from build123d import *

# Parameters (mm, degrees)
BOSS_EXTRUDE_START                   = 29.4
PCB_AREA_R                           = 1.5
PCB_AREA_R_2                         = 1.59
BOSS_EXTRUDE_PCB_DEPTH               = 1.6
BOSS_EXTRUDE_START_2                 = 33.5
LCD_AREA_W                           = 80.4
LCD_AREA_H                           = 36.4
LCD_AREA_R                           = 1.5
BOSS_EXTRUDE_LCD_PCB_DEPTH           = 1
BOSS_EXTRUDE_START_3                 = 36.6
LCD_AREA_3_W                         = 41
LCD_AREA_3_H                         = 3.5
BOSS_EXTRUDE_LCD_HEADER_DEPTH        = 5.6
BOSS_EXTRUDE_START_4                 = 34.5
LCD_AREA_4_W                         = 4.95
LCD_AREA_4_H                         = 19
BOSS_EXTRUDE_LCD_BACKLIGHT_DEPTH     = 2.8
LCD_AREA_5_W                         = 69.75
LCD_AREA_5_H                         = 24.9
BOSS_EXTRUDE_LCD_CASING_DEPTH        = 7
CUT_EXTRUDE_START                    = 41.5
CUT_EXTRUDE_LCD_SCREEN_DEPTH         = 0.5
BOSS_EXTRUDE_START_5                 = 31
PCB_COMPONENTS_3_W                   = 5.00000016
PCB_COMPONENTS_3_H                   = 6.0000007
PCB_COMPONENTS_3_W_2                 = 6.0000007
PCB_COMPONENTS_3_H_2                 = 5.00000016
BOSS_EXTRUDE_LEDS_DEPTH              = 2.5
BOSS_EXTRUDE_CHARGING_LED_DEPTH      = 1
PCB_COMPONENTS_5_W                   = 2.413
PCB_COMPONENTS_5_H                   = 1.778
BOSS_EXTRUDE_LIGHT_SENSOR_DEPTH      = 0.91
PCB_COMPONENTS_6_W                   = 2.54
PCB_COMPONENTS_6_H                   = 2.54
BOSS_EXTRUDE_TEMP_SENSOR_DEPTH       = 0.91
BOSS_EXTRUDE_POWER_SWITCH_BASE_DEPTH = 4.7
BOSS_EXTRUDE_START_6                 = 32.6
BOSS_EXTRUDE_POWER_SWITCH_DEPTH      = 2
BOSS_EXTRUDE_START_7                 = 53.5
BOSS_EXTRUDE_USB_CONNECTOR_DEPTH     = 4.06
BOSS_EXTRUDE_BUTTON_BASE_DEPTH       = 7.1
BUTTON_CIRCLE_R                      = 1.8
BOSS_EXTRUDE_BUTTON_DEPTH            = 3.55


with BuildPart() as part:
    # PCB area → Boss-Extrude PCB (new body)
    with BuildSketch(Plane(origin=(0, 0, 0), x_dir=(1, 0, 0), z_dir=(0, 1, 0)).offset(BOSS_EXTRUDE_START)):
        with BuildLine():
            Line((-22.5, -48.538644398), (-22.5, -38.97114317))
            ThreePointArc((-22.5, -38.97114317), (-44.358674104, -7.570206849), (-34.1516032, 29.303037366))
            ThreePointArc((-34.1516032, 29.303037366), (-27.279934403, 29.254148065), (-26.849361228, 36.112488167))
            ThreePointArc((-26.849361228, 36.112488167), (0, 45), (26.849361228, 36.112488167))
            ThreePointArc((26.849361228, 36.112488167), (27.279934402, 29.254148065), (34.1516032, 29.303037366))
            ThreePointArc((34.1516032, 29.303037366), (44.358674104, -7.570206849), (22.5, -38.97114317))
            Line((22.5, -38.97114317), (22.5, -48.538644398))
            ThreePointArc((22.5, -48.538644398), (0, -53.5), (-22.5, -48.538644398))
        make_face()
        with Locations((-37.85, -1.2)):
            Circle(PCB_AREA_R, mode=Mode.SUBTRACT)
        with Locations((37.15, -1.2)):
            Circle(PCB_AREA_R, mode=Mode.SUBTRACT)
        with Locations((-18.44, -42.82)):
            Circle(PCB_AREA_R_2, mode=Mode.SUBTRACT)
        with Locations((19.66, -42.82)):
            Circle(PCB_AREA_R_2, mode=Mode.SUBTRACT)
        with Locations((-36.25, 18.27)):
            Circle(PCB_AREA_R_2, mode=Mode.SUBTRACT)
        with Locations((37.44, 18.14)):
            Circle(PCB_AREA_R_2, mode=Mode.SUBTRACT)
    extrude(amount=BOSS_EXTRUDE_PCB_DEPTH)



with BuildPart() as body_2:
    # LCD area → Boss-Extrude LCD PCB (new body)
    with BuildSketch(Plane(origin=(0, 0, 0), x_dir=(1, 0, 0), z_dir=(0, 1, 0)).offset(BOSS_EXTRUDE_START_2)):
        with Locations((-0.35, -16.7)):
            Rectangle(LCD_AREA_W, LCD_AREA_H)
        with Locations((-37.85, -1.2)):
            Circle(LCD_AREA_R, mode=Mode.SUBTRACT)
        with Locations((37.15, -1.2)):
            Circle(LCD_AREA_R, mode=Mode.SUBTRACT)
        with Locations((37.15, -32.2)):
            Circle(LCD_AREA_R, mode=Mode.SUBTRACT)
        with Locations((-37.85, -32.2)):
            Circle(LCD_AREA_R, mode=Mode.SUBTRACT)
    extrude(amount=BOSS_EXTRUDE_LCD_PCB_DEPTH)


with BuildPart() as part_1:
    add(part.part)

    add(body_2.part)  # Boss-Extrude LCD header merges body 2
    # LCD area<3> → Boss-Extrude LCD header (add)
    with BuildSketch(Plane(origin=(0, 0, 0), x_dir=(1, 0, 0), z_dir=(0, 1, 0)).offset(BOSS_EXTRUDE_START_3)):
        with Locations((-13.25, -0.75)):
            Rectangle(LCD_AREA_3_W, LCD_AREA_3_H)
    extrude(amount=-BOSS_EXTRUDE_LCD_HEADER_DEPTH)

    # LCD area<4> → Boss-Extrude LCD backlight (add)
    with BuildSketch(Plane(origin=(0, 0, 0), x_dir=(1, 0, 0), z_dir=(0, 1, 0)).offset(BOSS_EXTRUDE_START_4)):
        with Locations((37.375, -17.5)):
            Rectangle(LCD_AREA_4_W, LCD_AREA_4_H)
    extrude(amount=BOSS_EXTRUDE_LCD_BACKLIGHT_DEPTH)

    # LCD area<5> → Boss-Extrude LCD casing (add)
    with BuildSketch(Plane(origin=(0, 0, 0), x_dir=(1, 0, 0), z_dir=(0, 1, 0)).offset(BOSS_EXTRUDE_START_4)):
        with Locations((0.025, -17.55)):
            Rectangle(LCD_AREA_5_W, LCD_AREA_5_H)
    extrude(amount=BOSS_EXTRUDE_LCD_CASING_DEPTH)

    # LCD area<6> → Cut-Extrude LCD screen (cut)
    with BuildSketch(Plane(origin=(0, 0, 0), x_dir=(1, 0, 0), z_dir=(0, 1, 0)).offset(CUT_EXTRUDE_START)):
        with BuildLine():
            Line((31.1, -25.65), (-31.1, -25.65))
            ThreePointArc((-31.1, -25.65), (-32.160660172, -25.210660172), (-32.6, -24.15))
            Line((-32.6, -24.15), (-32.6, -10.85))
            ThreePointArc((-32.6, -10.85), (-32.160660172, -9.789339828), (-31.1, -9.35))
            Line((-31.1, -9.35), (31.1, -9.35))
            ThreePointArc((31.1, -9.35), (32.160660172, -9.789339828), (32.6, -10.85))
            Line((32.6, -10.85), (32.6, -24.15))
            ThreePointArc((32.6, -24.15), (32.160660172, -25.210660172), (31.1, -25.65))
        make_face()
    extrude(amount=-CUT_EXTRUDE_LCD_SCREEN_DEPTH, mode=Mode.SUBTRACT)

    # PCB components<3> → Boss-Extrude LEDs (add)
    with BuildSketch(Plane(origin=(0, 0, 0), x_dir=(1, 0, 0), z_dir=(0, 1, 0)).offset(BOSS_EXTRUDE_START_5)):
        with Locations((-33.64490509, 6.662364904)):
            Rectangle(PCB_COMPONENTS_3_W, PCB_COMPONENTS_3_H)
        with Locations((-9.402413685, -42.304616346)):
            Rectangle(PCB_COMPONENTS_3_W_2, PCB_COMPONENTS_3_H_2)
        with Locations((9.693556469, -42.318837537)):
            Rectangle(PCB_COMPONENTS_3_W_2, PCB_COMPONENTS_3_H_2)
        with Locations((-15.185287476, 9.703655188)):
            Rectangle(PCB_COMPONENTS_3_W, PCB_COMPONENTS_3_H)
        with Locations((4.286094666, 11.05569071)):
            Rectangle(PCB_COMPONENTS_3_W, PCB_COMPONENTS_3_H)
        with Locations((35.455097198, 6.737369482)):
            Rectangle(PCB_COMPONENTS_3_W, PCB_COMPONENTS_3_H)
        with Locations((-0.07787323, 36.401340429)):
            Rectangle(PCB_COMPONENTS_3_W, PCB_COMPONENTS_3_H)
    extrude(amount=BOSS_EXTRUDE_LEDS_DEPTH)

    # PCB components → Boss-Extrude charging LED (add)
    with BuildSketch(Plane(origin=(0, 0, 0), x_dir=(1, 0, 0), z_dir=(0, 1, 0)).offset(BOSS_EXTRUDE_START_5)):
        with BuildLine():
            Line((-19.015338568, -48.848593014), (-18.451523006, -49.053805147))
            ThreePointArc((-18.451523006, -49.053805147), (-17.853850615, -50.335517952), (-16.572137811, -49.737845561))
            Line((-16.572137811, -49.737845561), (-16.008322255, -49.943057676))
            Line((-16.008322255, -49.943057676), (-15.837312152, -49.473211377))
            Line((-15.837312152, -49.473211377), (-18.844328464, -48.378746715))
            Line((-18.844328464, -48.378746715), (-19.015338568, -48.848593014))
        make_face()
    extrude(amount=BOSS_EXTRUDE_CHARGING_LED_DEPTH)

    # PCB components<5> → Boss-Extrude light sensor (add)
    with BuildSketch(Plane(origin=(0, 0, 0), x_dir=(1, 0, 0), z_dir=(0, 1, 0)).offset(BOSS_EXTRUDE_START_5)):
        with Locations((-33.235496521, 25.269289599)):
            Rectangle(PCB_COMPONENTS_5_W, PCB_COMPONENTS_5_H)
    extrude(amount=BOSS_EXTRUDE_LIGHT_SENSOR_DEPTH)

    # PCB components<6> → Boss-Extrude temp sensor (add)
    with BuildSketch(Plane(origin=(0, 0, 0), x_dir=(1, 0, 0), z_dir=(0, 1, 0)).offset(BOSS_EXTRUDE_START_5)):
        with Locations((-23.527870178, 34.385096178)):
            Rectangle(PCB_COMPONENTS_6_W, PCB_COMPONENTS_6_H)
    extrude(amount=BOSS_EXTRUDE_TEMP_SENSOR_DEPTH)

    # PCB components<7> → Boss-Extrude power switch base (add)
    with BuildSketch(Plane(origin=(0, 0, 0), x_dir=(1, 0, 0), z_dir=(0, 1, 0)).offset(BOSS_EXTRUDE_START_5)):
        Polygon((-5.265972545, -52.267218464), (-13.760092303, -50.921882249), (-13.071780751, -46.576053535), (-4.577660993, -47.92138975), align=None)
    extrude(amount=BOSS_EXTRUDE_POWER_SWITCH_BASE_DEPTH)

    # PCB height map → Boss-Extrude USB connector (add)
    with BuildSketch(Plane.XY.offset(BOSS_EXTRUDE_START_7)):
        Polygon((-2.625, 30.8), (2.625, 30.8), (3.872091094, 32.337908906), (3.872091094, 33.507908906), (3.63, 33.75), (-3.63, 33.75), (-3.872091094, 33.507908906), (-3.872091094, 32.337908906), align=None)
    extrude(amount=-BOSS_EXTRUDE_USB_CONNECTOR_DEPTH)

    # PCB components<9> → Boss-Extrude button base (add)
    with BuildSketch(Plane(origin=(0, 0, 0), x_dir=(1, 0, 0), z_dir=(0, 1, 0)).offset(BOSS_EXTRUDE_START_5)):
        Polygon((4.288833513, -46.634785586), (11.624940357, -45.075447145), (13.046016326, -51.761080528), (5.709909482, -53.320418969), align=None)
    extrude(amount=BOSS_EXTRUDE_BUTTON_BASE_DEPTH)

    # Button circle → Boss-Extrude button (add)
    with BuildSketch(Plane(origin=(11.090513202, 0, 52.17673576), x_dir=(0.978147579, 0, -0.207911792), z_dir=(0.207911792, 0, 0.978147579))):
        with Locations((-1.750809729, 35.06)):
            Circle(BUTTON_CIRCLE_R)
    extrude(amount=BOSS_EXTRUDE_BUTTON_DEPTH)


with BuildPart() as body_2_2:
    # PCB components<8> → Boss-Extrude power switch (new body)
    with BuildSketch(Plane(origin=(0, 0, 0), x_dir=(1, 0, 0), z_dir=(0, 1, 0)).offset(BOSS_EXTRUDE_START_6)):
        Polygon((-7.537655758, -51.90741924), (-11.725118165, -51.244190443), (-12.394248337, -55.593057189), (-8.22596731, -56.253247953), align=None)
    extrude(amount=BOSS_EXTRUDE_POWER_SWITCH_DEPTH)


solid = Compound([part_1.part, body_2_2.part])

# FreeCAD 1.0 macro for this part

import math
import FreeCAD as App
import Part
import Sketcher
Q = App.Units.Quantity

doc = App.newDocument("Part")
params = doc.addObject("Spreadsheet::Sheet", "Params")
for row, (alias, value) in enumerate([
    ("sketch1_diameter", "3 mm"),
    ("sketch1_radius", "45 mm"),
    ("sketch1_radius2", "5 mm"),
    ("sketch1_radius3", "53.5 mm"),
    ("sketch1_diameter2", "3.18 mm"),
    ("pad1_length", "1.6 mm"),
    ("sketch2_diameter", "3 mm"),
    ("sketch2_width", "80.4 mm"),
    ("sketch2_height", "36.4 mm"),
    ("pad2_length", "1 mm"),
    ("sketch3_width", "41 mm"),
    ("sketch3_height", "3.5 mm"),
    ("pad3_length", "5.6 mm"),
    ("sketch4_height", "19 mm"),
    ("sketch4_width", "4.95 mm"),
    ("pad4_length", "2.8 mm"),
    ("sketch5_height", "24.9 mm"),
    ("sketch5_width", "69.75 mm"),
    ("pad5_length", "7 mm"),
    ("sketch6_radius", "1.5 mm"),
    ("sketch6_width", "62.2 mm"),
    ("sketch6_height", "13.3 mm"),
    ("pocket1_length", "0.5 mm"),
    ("sketch7_width", "5 mm"),
    ("sketch7_width2", "6.000001 mm"),
    ("pad6_length", "2.5 mm"),
    ("sketch8_radius", "1 mm"),
    ("sketch8_length", "0.6 mm"),
    ("sketch8_length2", "0.5 mm"),
    ("pad7_length", "1 mm"),
    ("pad8_length", "0.91 mm"),
    ("sketch10_width", "2.54 mm"),
    ("pad9_length", "0.91 mm"),
    ("sketch11_length", "8.6 mm"),
    ("sketch11_length2", "4.4 mm"),
    ("pad10_length", "4.7 mm"),
    ("sketch12_width", "5.25 mm"),
    ("sketch12_width2", "7.26 mm"),
    ("sketch12_height", "1.17 mm"),
    ("sketch12_length", "1.98 mm"),
    ("pad11_length", "4.06 mm"),
    ("sketch13_length", "7.5 mm"),
    ("pad12_length", "7.1 mm"),
    ("sketch14_diameter", "3.6 mm"),
    ("pad13_length", "3.55 mm"),
    ("sketch15_length", "4.4 mm"),
    ("pad14_length", "2 mm"),
], start=1):
    params.set(f"A{row}", alias)
    params.set(f"B{row}", "=" + value)
    params.setAlias(f"B{row}", alias)

body = doc.addObject("PartDesign::Body", "Body")

# Sketch on XZ plane
sketch1 = doc.addObject("Sketcher::SketchObject", "Sketch")
body.addObject(sketch1)
sketch1.AttachmentSupport = (doc.XZ_Plane, [""])
sketch1.MapMode = "FlatFace"
sketch1.AttachmentOffset = App.Placement(App.Vector(0, 0, -29.4), App.Rotation())
sketch1.addGeometry([
    Part.LineSegment(App.Vector(-22.5, 38.971143, 0), App.Vector(-22.5, 48.538644, 0)),  # 0
    Part.ArcOfCircle(Part.Circle(App.Vector(0, 0, 0), App.Vector(0, 0, 1), 53.5), math.radians(65.130005), math.radians(114.869995)),  # 1
    Part.LineSegment(App.Vector(22.5, 48.538644, 0), App.Vector(22.5, 38.971143, 0)),  # 2
    Part.ArcOfCircle(Part.Circle(App.Vector(0, 0, 0), App.Vector(0, 0, 1), 45), math.radians(-40.630523), math.radians(60)),  # 3
    Part.ArcOfCircle(Part.Circle(App.Vector(30.689926, -32.910917, 0), App.Vector(0, 0, 1), 5), math.radians(46.184739), math.radians(219.815261)),  # 4
    Part.ArcOfCircle(Part.Circle(App.Vector(0, 0, 0), App.Vector(0, 0, 1), 45), math.radians(-126.630523), math.radians(-53.369477)),  # 5
    Part.ArcOfCircle(Part.Circle(App.Vector(-30.689926, -32.910917, 0), App.Vector(0, 0, 1), 5), math.radians(-39.815261), math.radians(133.815261)),  # 6
    Part.ArcOfCircle(Part.Circle(App.Vector(0, 0, 0), App.Vector(0, 0, 1), 45), math.radians(120), math.radians(220.630523)),  # 7
    Part.Circle(App.Vector(19.66, 42.82, 0), App.Vector(0, 0, 1), 1.59),  # 8
    Part.Circle(App.Vector(-18.44, 42.82, 0), App.Vector(0, 0, 1), 1.59),  # 9
    Part.Circle(App.Vector(37.15, 1.2, 0), App.Vector(0, 0, 1), 1.5),  # 10
    Part.Circle(App.Vector(37.44, -18.14, 0), App.Vector(0, 0, 1), 1.59),  # 11
    Part.Circle(App.Vector(-37.85, 1.2, 0), App.Vector(0, 0, 1), 1.5),  # 12
    Part.Circle(App.Vector(-36.25, -18.27, 0), App.Vector(0, 0, 1), 1.59),  # 13
], False)
sketch1.addConstraint([
    Sketcher.Constraint("Coincident", 0, 2, 1, 2),
    Sketcher.Constraint("Coincident", 1, 1, 2, 1),
    Sketcher.Constraint("Coincident", 2, 2, 3, 2),
    Sketcher.Constraint("Coincident", 3, 1, 4, 1),
    Sketcher.Constraint("Coincident", 4, 2, 5, 2),
    Sketcher.Constraint("Coincident", 5, 1, 6, 1),
    Sketcher.Constraint("Coincident", 6, 2, 7, 2),
    Sketcher.Constraint("Coincident", 7, 1, 0, 1),
    Sketcher.Constraint("Vertical", 0),
    Sketcher.Constraint("Vertical", 2),
    Sketcher.Constraint("Coincident", 1, 3, -1, 1),
    Sketcher.Constraint("Coincident", 3, 3, -1, 1),
    Sketcher.Constraint("Coincident", 5, 3, -1, 1),
    Sketcher.Constraint("Coincident", 7, 3, -1, 1),
    Sketcher.Constraint("Equal", 3, 5),
    Sketcher.Constraint("Equal", 4, 6),
    Sketcher.Constraint("Equal", 5, 7),
    Sketcher.Constraint("Equal", 8, 9),
    Sketcher.Constraint("Equal", 9, 11),
    Sketcher.Constraint("Equal", 10, 12),
    Sketcher.Constraint("Equal", 11, 13),
    Sketcher.Constraint("Symmetric", 4, 3, 6, 3, -2),
    Sketcher.Constraint("Horizontal", 8, 3, 9, 3),
    Sketcher.Constraint("Horizontal", 10, 3, 12, 3),
    Sketcher.Constraint("Horizontal", 0, 2, 1, 1),
    Sketcher.Constraint("Diameter", 10, Q("3 mm")),
    Sketcher.Constraint("Radius", 3, Q("45 mm")),
    Sketcher.Constraint("Radius", 4, Q("5 mm")),
    Sketcher.Constraint("Radius", 1, Q("53.5 mm")),
    Sketcher.Constraint("Diameter", 8, Q("3.18 mm")),
    Sketcher.Constraint("DistanceX", 0, 2, 1, 1, Q("45 mm")),
    Sketcher.Constraint("DistanceY", -1, 1, 10, 3, Q("1.2 mm")),
    Sketcher.Constraint("DistanceX", 9, 3, 8, 3, Q("38.1 mm")),
    Sketcher.Constraint("DistanceX", 12, 3, 13, 3, Q("1.6 mm")),
    Sketcher.Constraint("DistanceX", -1, 1, 8, 3, Q("19.66 mm")),
    Sketcher.Constraint("DistanceY", -1, 1, 8, 3, Q("42.82 mm")),
    Sketcher.Constraint("DistanceX", -1, 1, 10, 3, Q("37.15 mm")),
    Sketcher.Constraint("DistanceX", -1, 1, 11, 3, Q("37.44 mm")),
    Sketcher.Constraint("DistanceY", 11, 3, -1, 1, Q("18.14 mm")),
    Sketcher.Constraint("DistanceX", 12, 3, -1, 1, Q("37.85 mm")),
    Sketcher.Constraint("DistanceY", 13, 3, -1, 1, Q("18.27 mm")),
    Sketcher.Constraint("DistanceX", -1, 1, 4, 2, Q("26.849361 mm")),
    Sketcher.Constraint("DistanceY", 4, 3, 3, 1, Q("3.607879 mm")),
])
sketch1.setExpression("Constraints[25]", "Params.sketch1_diameter")
sketch1.setExpression("Constraints[26]", "Params.sketch1_radius")
sketch1.setExpression("Constraints[27]", "Params.sketch1_radius2")
sketch1.setExpression("Constraints[28]", "Params.sketch1_radius3")
sketch1.setExpression("Constraints[29]", "Params.sketch1_diameter2")
pad1 = doc.addObject("PartDesign::Pad", "Pad")
body.addObject(pad1)
pad1.Profile = sketch1
pad1.setExpression("Length", "Params.pad1_length")
pad1.Reversed = True
body2 = doc.addObject("PartDesign::Body", "Body001")

# Sketch on XZ plane
sketch2 = doc.addObject("Sketcher::SketchObject", "Sketch001")
body2.addObject(sketch2)
sketch2.AttachmentSupport = (doc.getObject("XZ_Plane001"), [""])
sketch2.MapMode = "FlatFace"
sketch2.AttachmentOffset = App.Placement(App.Vector(0, 0, -33.5), App.Rotation())
sketch2.addGeometry([
    Part.LineSegment(App.Vector(-40.55, -1.5, 0), App.Vector(-40.55, 34.9, 0)),  # 0
    Part.LineSegment(App.Vector(-40.55, 34.9, 0), App.Vector(39.85, 34.9, 0)),  # 1
    Part.LineSegment(App.Vector(39.85, 34.9, 0), App.Vector(39.85, -1.5, 0)),  # 2
    Part.LineSegment(App.Vector(39.85, -1.5, 0), App.Vector(-40.55, -1.5, 0)),  # 3
    Part.Circle(App.Vector(-37.85, 32.2, 0), App.Vector(0, 0, 1), 1.5),  # 4
    Part.Circle(App.Vector(37.15, 32.2, 0), App.Vector(0, 0, 1), 1.5),  # 5
    Part.Circle(App.Vector(-37.85, 1.2, 0), App.Vector(0, 0, 1), 1.5),  # 6
    Part.Circle(App.Vector(37.15, 1.2, 0), App.Vector(0, 0, 1), 1.5),  # 7
], False)
sketch2.addConstraint([
    Sketcher.Constraint("Coincident", 0, 2, 1, 1),
    Sketcher.Constraint("Coincident", 1, 2, 2, 1),
    Sketcher.Constraint("Coincident", 2, 2, 3, 1),
    Sketcher.Constraint("Coincident", 3, 2, 0, 1),
    Sketcher.Constraint("Vertical", 0),
    Sketcher.Constraint("Horizontal", 1),
    Sketcher.Constraint("Vertical", 2),
    Sketcher.Constraint("Horizontal", 3),
    Sketcher.Constraint("Equal", 4, 5),
    Sketcher.Constraint("Equal", 5, 6),
    Sketcher.Constraint("Equal", 6, 7),
    Sketcher.Constraint("Horizontal", 4, 3, 5, 3),
    Sketcher.Constraint("Horizontal", 6, 3, 7, 3),
    Sketcher.Constraint("Vertical", 4, 3, 6, 3),
    Sketcher.Constraint("Vertical", 5, 3, 7, 3),
    Sketcher.Constraint("Diameter", 4, Q("3 mm")),
    Sketcher.Constraint("DistanceX", 1, 1, 1, 2, Q("80.4 mm")),
    Sketcher.Constraint("DistanceY", 0, 1, 0, 2, Q("36.4 mm")),
    Sketcher.Constraint("DistanceX", 4, 3, 5, 3, Q("75 mm")),
    Sketcher.Constraint("DistanceY", 6, 3, 4, 3, Q("31 mm")),
    Sketcher.Constraint("DistanceY", -1, 1, 4, 3, Q("32.2 mm")),
    Sketcher.Constraint("DistanceY", -1, 1, 0, 2, Q("34.9 mm")),
    Sketcher.Constraint("DistanceX", 0, 2, 4, 3, Q("2.7 mm")),
    Sketcher.Constraint("DistanceX", 4, 3, -1, 1, Q("37.85 mm")),
])
sketch2.setExpression("Constraints[15]", "Params.sketch2_diameter")
sketch2.setExpression("Constraints[16]", "Params.sketch2_width")
sketch2.setExpression("Constraints[17]", "Params.sketch2_height")
pad2 = doc.addObject("PartDesign::Pad", "Pad001")
body2.addObject(pad2)
pad2.Profile = sketch2
pad2.setExpression("Length", "Params.pad2_length")
pad2.Reversed = True
body.AllowCompound = True
doc.recompute()

boolean = doc.addObject("PartDesign::Boolean", "Boolean")
body.addObject(boolean)
boolean.Type = "Fuse"
boolean.addObjects([body2])

# Sketch on XZ plane
sketch3 = doc.addObject("Sketcher::SketchObject", "Sketch002")
body.addObject(sketch3)
sketch3.AttachmentSupport = (doc.XZ_Plane, [""])
sketch3.MapMode = "FlatFace"
sketch3.AttachmentOffset = App.Placement(App.Vector(0, 0, -36.6), App.Rotation())
sketch3.addGeometry([
    Part.LineSegment(App.Vector(-33.75, -1, 0), App.Vector(-33.75, 2.5, 0)),
    Part.LineSegment(App.Vector(-33.75, 2.5, 0), App.Vector(7.25, 2.5, 0)),
    Part.LineSegment(App.Vector(7.25, 2.5, 0), App.Vector(7.25, -1, 0)),
    Part.LineSegment(App.Vector(7.25, -1, 0), App.Vector(-33.75, -1, 0)),
], False)
sketch3.addConstraint([
    Sketcher.Constraint("Coincident", 0, 2, 1, 1),
    Sketcher.Constraint("Coincident", 1, 2, 2, 1),
    Sketcher.Constraint("Coincident", 2, 2, 3, 1),
    Sketcher.Constraint("Coincident", 3, 2, 0, 1),
    Sketcher.Constraint("Vertical", 0),
    Sketcher.Constraint("Horizontal", 1),
    Sketcher.Constraint("Vertical", 2),
    Sketcher.Constraint("Horizontal", 3),
    Sketcher.Constraint("DistanceX", 1, 1, 1, 2, Q("41 mm")),
    Sketcher.Constraint("DistanceY", 0, 1, 0, 2, Q("3.5 mm")),
    Sketcher.Constraint("DistanceY", 2, 2, -1, 1, Q("1 mm")),
    Sketcher.Constraint("DistanceX", 0, 2, -1, 1, Q("33.75 mm")),
])
sketch3.setExpression("Constraints[8]", "Params.sketch3_width")
sketch3.setExpression("Constraints[9]", "Params.sketch3_height")
pad3 = doc.addObject("PartDesign::Pad", "Pad002")
body.addObject(pad3)
pad3.Profile = sketch3
pad3.setExpression("Length", "Params.pad3_length")

# Sketch on XZ plane
sketch4 = doc.addObject("Sketcher::SketchObject", "Sketch003")
body.addObject(sketch4)
sketch4.AttachmentSupport = (doc.XZ_Plane, [""])
sketch4.MapMode = "FlatFace"
sketch4.AttachmentOffset = App.Placement(App.Vector(0, 0, -34.5), App.Rotation())
sketch4.addGeometry([
    Part.LineSegment(App.Vector(34.9, 8, 0), App.Vector(34.9, 27, 0)),
    Part.LineSegment(App.Vector(34.9, 27, 0), App.Vector(39.85, 27, 0)),
    Part.LineSegment(App.Vector(39.85, 27, 0), App.Vector(39.85, 8, 0)),
    Part.LineSegment(App.Vector(39.85, 8, 0), App.Vector(34.9, 8, 0)),
], False)
sketch4.addConstraint([
    Sketcher.Constraint("Coincident", 0, 2, 1, 1),
    Sketcher.Constraint("Coincident", 1, 2, 2, 1),
    Sketcher.Constraint("Coincident", 2, 2, 3, 1),
    Sketcher.Constraint("Coincident", 3, 2, 0, 1),
    Sketcher.Constraint("Vertical", 0),
    Sketcher.Constraint("Horizontal", 1),
    Sketcher.Constraint("Vertical", 2),
    Sketcher.Constraint("Horizontal", 3),
    Sketcher.Constraint("DistanceY", 0, 1, 0, 2, Q("19 mm")),
    Sketcher.Constraint("DistanceY", -1, 1, 0, 2, Q("27 mm")),
    Sketcher.Constraint("DistanceX", 1, 1, 1, 2, Q("4.95 mm")),
    Sketcher.Constraint("DistanceX", -1, 1, 0, 2, Q("34.9 mm")),
])
sketch4.setExpression("Constraints[8]", "Params.sketch4_height")
sketch4.setExpression("Constraints[10]", "Params.sketch4_width")
pad4 = doc.addObject("PartDesign::Pad", "Pad003")
body.addObject(pad4)
pad4.Profile = sketch4
pad4.setExpression("Length", "Params.pad4_length")
pad4.Reversed = True

# Sketch on XZ plane
sketch5 = doc.addObject("Sketcher::SketchObject", "Sketch004")
body.addObject(sketch5)
sketch5.AttachmentSupport = (doc.XZ_Plane, [""])
sketch5.MapMode = "FlatFace"
sketch5.AttachmentOffset = App.Placement(App.Vector(0, 0, -34.5), App.Rotation())
sketch5.addGeometry([
    Part.LineSegment(App.Vector(-34.85, 5.1, 0), App.Vector(-34.85, 30, 0)),
    Part.LineSegment(App.Vector(-34.85, 30, 0), App.Vector(34.9, 30, 0)),
    Part.LineSegment(App.Vector(34.9, 30, 0), App.Vector(34.9, 5.1, 0)),
    Part.LineSegment(App.Vector(34.9, 5.1, 0), App.Vector(-34.85, 5.1, 0)),
], False)
sketch5.addConstraint([
    Sketcher.Constraint("Coincident", 0, 2, 1, 1),
    Sketcher.Constraint("Coincident", 1, 2, 2, 1),
    Sketcher.Constraint("Coincident", 2, 2, 3, 1),
    Sketcher.Constraint("Coincident", 3, 2, 0, 1),
    Sketcher.Constraint("Vertical", 0),
    Sketcher.Constraint("Horizontal", 1),
    Sketcher.Constraint("Vertical", 2),
    Sketcher.Constraint("Horizontal", 3),
    Sketcher.Constraint("DistanceY", 0, 1, 0, 2, Q("24.9 mm")),
    Sketcher.Constraint("DistanceY", -1, 1, 0, 2, Q("30 mm")),
    Sketcher.Constraint("DistanceX", 1, 1, 1, 2, Q("69.75 mm")),
    Sketcher.Constraint("DistanceX", -1, 1, 1, 2, Q("34.9 mm")),
])
sketch5.setExpression("Constraints[8]", "Params.sketch5_height")
sketch5.setExpression("Constraints[10]", "Params.sketch5_width")
pad5 = doc.addObject("PartDesign::Pad", "Pad004")
body.addObject(pad5)
pad5.Profile = sketch5
pad5.setExpression("Length", "Params.pad5_length")
pad5.Reversed = True

# Sketch on XZ plane
sketch6 = doc.addObject("Sketcher::SketchObject", "Sketch005")
body.addObject(sketch6)
sketch6.AttachmentSupport = (doc.XZ_Plane, [""])
sketch6.MapMode = "FlatFace"
sketch6.AttachmentOffset = App.Placement(App.Vector(0, 0, -41.5), App.Rotation())
sketch6.addGeometry([
    Part.LineSegment(App.Vector(-31.1, 25.65, 0), App.Vector(31.1, 25.65, 0)),  # 0
    Part.ArcOfCircle(Part.Circle(App.Vector(31.1, 24.15, 0), App.Vector(0, 0, 1), 1.5), math.radians(0), math.radians(90)),  # 1
    Part.LineSegment(App.Vector(32.6, 24.15, 0), App.Vector(32.6, 10.85, 0)),  # 2
    Part.ArcOfCircle(Part.Circle(App.Vector(31.1, 10.85, 0), App.Vector(0, 0, 1), 1.5), math.radians(-90), math.radians(0)),  # 3
    Part.LineSegment(App.Vector(31.1, 9.35, 0), App.Vector(-31.1, 9.35, 0)),  # 4
    Part.ArcOfCircle(Part.Circle(App.Vector(-31.1, 10.85, 0), App.Vector(0, 0, 1), 1.5), math.radians(180), math.radians(270)),  # 5
    Part.LineSegment(App.Vector(-32.6, 10.85, 0), App.Vector(-32.6, 24.15, 0)),  # 6
    Part.ArcOfCircle(Part.Circle(App.Vector(-31.1, 24.15, 0), App.Vector(0, 0, 1), 1.5), math.radians(90), math.radians(180)),  # 7
], False)
sketch6.addConstraint([
    Sketcher.Constraint("Tangent", 0, 2, 1, 2),
    Sketcher.Constraint("Tangent", 1, 1, 2, 1),
    Sketcher.Constraint("Tangent", 2, 2, 3, 2),
    Sketcher.Constraint("Tangent", 3, 1, 4, 1),
    Sketcher.Constraint("Tangent", 4, 2, 5, 2),
    Sketcher.Constraint("Tangent", 5, 1, 6, 1),
    Sketcher.Constraint("Tangent", 6, 2, 7, 2),
    Sketcher.Constraint("Tangent", 7, 1, 0, 1),
    Sketcher.Constraint("Horizontal", 0),
    Sketcher.Constraint("Vertical", 2),
    Sketcher.Constraint("Horizontal", 4),
    Sketcher.Constraint("Vertical", 6),
    Sketcher.Constraint("Equal", 1, 3),
    Sketcher.Constraint("Equal", 3, 5),
    Sketcher.Constraint("Equal", 5, 7),
    Sketcher.Constraint("Radius", 1, Q("1.5 mm")),
    Sketcher.Constraint("DistanceX", 0, 1, 0, 2, Q("62.2 mm")),
    Sketcher.Constraint("DistanceY", 2, 2, 2, 1, Q("13.3 mm")),
    Sketcher.Constraint("DistanceX", -1, 1, 1, 3, Q("31.1 mm")),
    Sketcher.Constraint("DistanceY", -1, 1, 1, 3, Q("24.15 mm")),
])
sketch6.setExpression("Constraints[15]", "Params.sketch6_radius")
sketch6.setExpression("Constraints[16]", "Params.sketch6_width")
sketch6.setExpression("Constraints[17]", "Params.sketch6_height")
pocket1 = doc.addObject("PartDesign::Pocket", "Pocket")
body.addObject(pocket1)
pocket1.Profile = sketch6
pocket1.setExpression("Length", "Params.pocket1_length")
pocket1.Reversed = True

# Sketch on XZ plane
sketch7 = doc.addObject("Sketcher::SketchObject", "Sketch006")
body.addObject(sketch7)
sketch7.AttachmentSupport = (doc.XZ_Plane, [""])
sketch7.MapMode = "FlatFace"
sketch7.AttachmentOffset = App.Placement(App.Vector(0, 0, -31), App.Rotation())
sketch7.addGeometry([
    Part.LineSegment(App.Vector(-36.144905, -9.662365, 0), App.Vector(-36.144905, -3.662365, 0)),  # 0
    Part.LineSegment(App.Vector(-36.144905, -3.662365, 0), App.Vector(-31.144905, -3.662365, 0)),  # 1
    Part.LineSegment(App.Vector(-31.144905, -3.662365, 0), App.Vector(-31.144905, -9.662365, 0)),  # 2
    Part.LineSegment(App.Vector(-31.144905, -9.662365, 0), App.Vector(-36.144905, -9.662365, 0)),  # 3
    Part.LineSegment(App.Vector(-12.402414, 39.804616, 0), App.Vector(-12.402414, 44.804616, 0)),  # 4
    Part.LineSegment(App.Vector(-12.402414, 44.804616, 0), App.Vector(-6.402413, 44.804616, 0)),  # 5
    Part.LineSegment(App.Vector(-6.402413, 44.804616, 0), App.Vector(-6.402413, 39.804616, 0)),  # 6
    Part.LineSegment(App.Vector(-6.402413, 39.804616, 0), App.Vector(-12.402414, 39.804616, 0)),  # 7
    Part.LineSegment(App.Vector(6.693556, 39.818837, 0), App.Vector(6.693556, 44.818838, 0)),  # 8
    Part.LineSegment(App.Vector(6.693556, 44.818838, 0), App.Vector(12.693557, 44.818838, 0)),  # 9
    Part.LineSegment(App.Vector(12.693557, 44.818838, 0), App.Vector(12.693557, 39.818837, 0)),  # 10
    Part.LineSegment(App.Vector(12.693557, 39.818837, 0), App.Vector(6.693556, 39.818837, 0)),  # 11
    Part.LineSegment(App.Vector(-17.685288, -12.703656, 0), App.Vector(-17.685288, -6.703655, 0)),  # 12
    Part.LineSegment(App.Vector(-17.685288, -6.703655, 0), App.Vector(-12.685287, -6.703655, 0)),  # 13
    Part.LineSegment(App.Vector(-12.685287, -6.703655, 0), App.Vector(-12.685287, -12.703656, 0)),  # 14
    Part.LineSegment(App.Vector(-12.685287, -12.703656, 0), App.Vector(-17.685288, -12.703656, 0)),  # 15
    Part.LineSegment(App.Vector(1.786095, -14.055691, 0), App.Vector(1.786095, -8.05569, 0)),  # 16
    Part.LineSegment(App.Vector(1.786095, -8.05569, 0), App.Vector(6.786095, -8.05569, 0)),  # 17
    Part.LineSegment(App.Vector(6.786095, -8.05569, 0), App.Vector(6.786095, -14.055691, 0)),  # 18
    Part.LineSegment(App.Vector(6.786095, -14.055691, 0), App.Vector(1.786095, -14.055691, 0)),  # 19
    Part.LineSegment(App.Vector(32.955097, -9.73737, 0), App.Vector(32.955097, -3.737369, 0)),  # 20
    Part.LineSegment(App.Vector(32.955097, -3.737369, 0), App.Vector(37.955097, -3.737369, 0)),  # 21
    Part.LineSegment(App.Vector(37.955097, -3.737369, 0), App.Vector(37.955097, -9.73737, 0)),  # 22
    Part.LineSegment(App.Vector(37.955097, -9.73737, 0), App.Vector(32.955097, -9.73737, 0)),  # 23
    Part.LineSegment(App.Vector(-2.577873, -39.401341, 0), App.Vector(-2.577873, -33.40134, 0)),  # 24
    Part.LineSegment(App.Vector(-2.577873, -33.40134, 0), App.Vector(2.422127, -33.40134, 0)),  # 25
    Part.LineSegment(App.Vector(2.422127, -33.40134, 0), App.Vector(2.422127, -39.401341, 0)),  # 26
    Part.LineSegment(App.Vector(2.422127, -39.401341, 0), App.Vector(-2.577873, -39.401341, 0)),  # 27
], False)
sketch7.addConstraint([
    Sketcher.Constraint("Coincident", 0, 2, 1, 1),
    Sketcher.Constraint("Coincident", 1, 2, 2, 1),
    Sketcher.Constraint("Coincident", 2, 2, 3, 1),
    Sketcher.Constraint("Coincident", 3, 2, 0, 1),
    Sketcher.Constraint("Coincident", 4, 2, 5, 1),
    Sketcher.Constraint("Coincident", 5, 2, 6, 1),
    Sketcher.Constraint("Coincident", 6, 2, 7, 1),
    Sketcher.Constraint("Coincident", 7, 2, 4, 1),
    Sketcher.Constraint("Coincident", 8, 2, 9, 1),
    Sketcher.Constraint("Coincident", 9, 2, 10, 1),
    Sketcher.Constraint("Coincident", 10, 2, 11, 1),
    Sketcher.Constraint("Coincident", 11, 2, 8, 1),
    Sketcher.Constraint("Coincident", 12, 2, 13, 1),
    Sketcher.Constraint("Coincident", 13, 2, 14, 1),
    Sketcher.Constraint("Coincident", 14, 2, 15, 1),
    Sketcher.Constraint("Coincident", 15, 2, 12, 1),
    Sketcher.Constraint("Coincident", 16, 2, 17, 1),
    Sketcher.Constraint("Coincident", 17, 2, 18, 1),
    Sketcher.Constraint("Coincident", 18, 2, 19, 1),
    Sketcher.Constraint("Coincident", 19, 2, 16, 1),
    Sketcher.Constraint("Coincident", 20, 2, 21, 1),
    Sketcher.Constraint("Coincident", 21, 2, 22, 1),
    Sketcher.Constraint("Coincident", 22, 2, 23, 1),
    Sketcher.Constraint("Coincident", 23, 2, 20, 1),
    Sketcher.Constraint("Coincident", 24, 2, 25, 1),
    Sketcher.Constraint("Coincident", 25, 2, 26, 1),
    Sketcher.Constraint("Coincident", 26, 2, 27, 1),
    Sketcher.Constraint("Coincident", 27, 2, 24, 1),
    Sketcher.Constraint("Vertical", 0),
    Sketcher.Constraint("Horizontal", 1),
    Sketcher.Constraint("Vertical", 2),
    Sketcher.Constraint("Horizontal", 3),
    Sketcher.Constraint("Vertical", 4),
    Sketcher.Constraint("Horizontal", 5),
    Sketcher.Constraint("Vertical", 6),
    Sketcher.Constraint("Horizontal", 7),
    Sketcher.Constraint("Vertical", 8),
    Sketcher.Constraint("Horizontal", 9),
    Sketcher.Constraint("Vertical", 10),
    Sketcher.Constraint("Horizontal", 11),
    Sketcher.Constraint("Vertical", 12),
    Sketcher.Constraint("Horizontal", 13),
    Sketcher.Constraint("Vertical", 14),
    Sketcher.Constraint("Horizontal", 15),
    Sketcher.Constraint("Vertical", 16),
    Sketcher.Constraint("Horizontal", 17),
    Sketcher.Constraint("Vertical", 18),
    Sketcher.Constraint("Horizontal", 19),
    Sketcher.Constraint("Vertical", 20),
    Sketcher.Constraint("Horizontal", 21),
    Sketcher.Constraint("Vertical", 22),
    Sketcher.Constraint("Horizontal", 23),
    Sketcher.Constraint("Vertical", 24),
    Sketcher.Constraint("Horizontal", 25),
    Sketcher.Constraint("Vertical", 26),
    Sketcher.Constraint("Horizontal", 27),
    Sketcher.Constraint("Equal", 7, 9),
    Sketcher.Constraint("Equal", 3, 13),
    Sketcher.Constraint("Equal", 15, 17),
    Sketcher.Constraint("Equal", 19, 21),
    Sketcher.Constraint("Equal", 23, 25),
    Sketcher.Constraint("Equal", 11, 0),
    Sketcher.Constraint("Equal", 27, 4),
    Sketcher.Constraint("Equal", 6, 8),
    Sketcher.Constraint("Equal", 2, 12),
    Sketcher.Constraint("Equal", 14, 16),
    Sketcher.Constraint("Equal", 18, 20),
    Sketcher.Constraint("Equal", 22, 24),
    Sketcher.Constraint("DistanceX", 1, 1, 1, 2, Q("5 mm")),
    Sketcher.Constraint("DistanceX", 5, 1, 5, 2, Q("6.000001 mm")),
    Sketcher.Constraint("DistanceX", 2, 2, 16, 2, Q("32.931 mm")),
    Sketcher.Constraint("DistanceY", 16, 2, -1, 1, Q("8.05569 mm")),
    Sketcher.Constraint("DistanceY", 20, 2, -1, 1, Q("3.737369 mm")),
    Sketcher.Constraint("DistanceY", 24, 2, -1, 1, Q("33.40134 mm")),
    Sketcher.Constraint("DistanceX", 1, 2, 4, 2, Q("18.742491 mm")),
    Sketcher.Constraint("DistanceY", 1, 2, 4, 2, Q("48.466981 mm")),
    Sketcher.Constraint("DistanceX", 5, 2, 8, 2, Q("13.095969 mm")),
    Sketcher.Constraint("DistanceY", 5, 2, 8, 2, Q("0.014221 mm")),
    Sketcher.Constraint("DistanceY", 2, 2, 12, 2, Q("2.95871 mm")),
    Sketcher.Constraint("DistanceX", 13, 2, 16, 2, Q("14.471382 mm")),
    Sketcher.Constraint("DistanceX", 24, 2, 18, 2, Q("9.363968 mm")),
    Sketcher.Constraint("DistanceX", 0, 2, -1, 1, Q("36.144905 mm")),
    Sketcher.Constraint("DistanceY", 0, 2, -1, 1, Q("3.662365 mm")),
    Sketcher.Constraint("DistanceX", -1, 1, 20, 2, Q("32.955097 mm")),
])
sketch7.setExpression("Constraints[68]", "Params.sketch7_width")
sketch7.setExpression("Constraints[69]", "Params.sketch7_width2")
pad6 = doc.addObject("PartDesign::Pad", "Pad005")
body.addObject(pad6)
pad6.Profile = sketch7
pad6.setExpression("Length", "Params.pad6_length")
pad6.Reversed = True

# Sketch on XZ plane
sketch8 = doc.addObject("Sketcher::SketchObject", "Sketch007")
body.addObject(sketch8)
sketch8.AttachmentSupport = (doc.XZ_Plane, [""])
sketch8.MapMode = "FlatFace"
sketch8.AttachmentOffset = App.Placement(App.Vector(0, 0, -31), App.Rotation())
sketch8.addGeometry([
    Part.LineSegment(App.Vector(-19.015339, 48.848593, 0), App.Vector(-18.451523, 49.053805, 0)),  # 0
    Part.ArcOfCircle(Part.Circle(App.Vector(-17.51183, 49.395825, 0), App.Vector(0, 0, 1), 1), math.radians(20.000004), math.radians(200.000004)),  # 1
    Part.LineSegment(App.Vector(-16.572138, 49.737846, 0), App.Vector(-16.008322, 49.943058, 0)),  # 2
    Part.LineSegment(App.Vector(-16.008322, 49.943058, 0), App.Vector(-15.837312, 49.473211, 0)),  # 3
    Part.LineSegment(App.Vector(-15.837312, 49.473211, 0), App.Vector(-18.844328, 48.378747, 0)),  # 4
    Part.LineSegment(App.Vector(-18.844328, 48.378747, 0), App.Vector(-19.015339, 48.848593, 0)),  # 5
], False)
sketch8.addConstraint([
    Sketcher.Constraint("Coincident", 0, 2, 1, 2),
    Sketcher.Constraint("Coincident", 1, 1, 2, 1),
    Sketcher.Constraint("Coincident", 2, 2, 3, 1),
    Sketcher.Constraint("Coincident", 3, 2, 4, 1),
    Sketcher.Constraint("Coincident", 4, 2, 5, 1),
    Sketcher.Constraint("Coincident", 5, 2, 0, 1),
    Sketcher.Constraint("Parallel", 0, 2),
    Sketcher.Constraint("Perpendicular", 2, 3),
    Sketcher.Constraint("Perpendicular", 3, 4),
    Sketcher.Constraint("Perpendicular", 4, 5),
    Sketcher.Constraint("Equal", 0, 2),
    Sketcher.Constraint("Equal", 3, 5),
    Sketcher.Constraint("Radius", 1, Q("1 mm")),
    Sketcher.Constraint("Angle", 0, Q("20.000005 deg")),
    Sketcher.Constraint("Distance", 0, Q("0.6 mm")),
    Sketcher.Constraint("Distance", 3, Q("0.5 mm")),
    Sketcher.Constraint("DistanceX", 4, 2, 1, 3, Q("1.332498 mm")),
    Sketcher.Constraint("DistanceX", 1, 3, -1, 1, Q("17.51183 mm")),
    Sketcher.Constraint("DistanceY", -1, 1, 3, 2, Q("49.473211 mm")),
])
sketch8.setExpression("Constraints[12]", "Params.sketch8_radius")
sketch8.setExpression("Constraints[14]", "Params.sketch8_length")
sketch8.setExpression("Constraints[15]", "Params.sketch8_length2")
pad7 = doc.addObject("PartDesign::Pad", "Pad006")
body.addObject(pad7)
pad7.Profile = sketch8
pad7.setExpression("Length", "Params.pad7_length")
pad7.Reversed = True

# Sketch on XZ plane
sketch9 = doc.addObject("Sketcher::SketchObject", "Sketch008")
body.addObject(sketch9)
sketch9.AttachmentSupport = (doc.XZ_Plane, [""])
sketch9.MapMode = "FlatFace"
sketch9.AttachmentOffset = App.Placement(App.Vector(0, 0, -31), App.Rotation())
sketch9.addGeometry([
    Part.LineSegment(App.Vector(-34.441997, -26.15829, 0), App.Vector(-34.441997, -24.38029, 0)),
    Part.LineSegment(App.Vector(-34.441997, -24.38029, 0), App.Vector(-32.028997, -24.38029, 0)),
    Part.LineSegment(App.Vector(-32.028997, -24.38029, 0), App.Vector(-32.028997, -26.15829, 0)),
    Part.LineSegment(App.Vector(-32.028997, -26.15829, 0), App.Vector(-34.441997, -26.15829, 0)),
], False)
sketch9.addConstraint([
    Sketcher.Constraint("Coincident", 0, 2, 1, 1),
    Sketcher.Constraint("Coincident", 1, 2, 2, 1),
    Sketcher.Constraint("Coincident", 2, 2, 3, 1),
    Sketcher.Constraint("Coincident", 3, 2, 0, 1),
    Sketcher.Constraint("Vertical", 0),
    Sketcher.Constraint("Horizontal", 1),
    Sketcher.Constraint("Vertical", 2),
    Sketcher.Constraint("Horizontal", 3),
    Sketcher.Constraint("DistanceX", 1, 1, 1, 2, Q("2.413 mm")),
    Sketcher.Constraint("DistanceY", 0, 1, 0, 2, Q("1.778 mm")),
    Sketcher.Constraint("DistanceY", 0, 2, -1, 1, Q("24.38029 mm")),
    Sketcher.Constraint("DistanceX", 0, 2, -1, 1, Q("34.441997 mm")),
])
pad8 = doc.addObject("PartDesign::Pad", "Pad007")
body.addObject(pad8)
pad8.Profile = sketch9
pad8.setExpression("Length", "Params.pad8_length")
pad8.Reversed = True

# Sketch on XZ plane
sketch10 = doc.addObject("Sketcher::SketchObject", "Sketch009")
body.addObject(sketch10)
sketch10.AttachmentSupport = (doc.XZ_Plane, [""])
sketch10.MapMode = "FlatFace"
sketch10.AttachmentOffset = App.Placement(App.Vector(0, 0, -31), App.Rotation())
sketch10.addGeometry([
    Part.LineSegment(App.Vector(-24.79787, -35.655096, 0), App.Vector(-24.79787, -33.115096, 0)),
    Part.LineSegment(App.Vector(-24.79787, -33.115096, 0), App.Vector(-22.25787, -33.115096, 0)),
    Part.LineSegment(App.Vector(-22.25787, -33.115096, 0), App.Vector(-22.25787, -35.655096, 0)),
    Part.LineSegment(App.Vector(-22.25787, -35.655096, 0), App.Vector(-24.79787, -35.655096, 0)),
], False)
sketch10.addConstraint([
    Sketcher.Constraint("Coincident", 0, 2, 1, 1),
    Sketcher.Constraint("Coincident", 1, 2, 2, 1),
    Sketcher.Constraint("Coincident", 2, 2, 3, 1),
    Sketcher.Constraint("Coincident", 3, 2, 0, 1),
    Sketcher.Constraint("Vertical", 0),
    Sketcher.Constraint("Horizontal", 1),
    Sketcher.Constraint("Vertical", 2),
    Sketcher.Constraint("Horizontal", 3),
    Sketcher.Constraint("Equal", 3, 0),
    Sketcher.Constraint("DistanceX", 1, 1, 1, 2, Q("2.54 mm")),
    Sketcher.Constraint("DistanceX", 0, 2, -1, 1, Q("24.79787 mm")),
    Sketcher.Constraint("DistanceY", 0, 2, -1, 1, Q("33.115096 mm")),
])
sketch10.setExpression("Constraints[9]", "Params.sketch10_width")
pad9 = doc.addObject("PartDesign::Pad", "Pad008")
body.addObject(pad9)
pad9.Profile = sketch10
pad9.setExpression("Length", "Params.pad9_length")
pad9.Reversed = True

# Sketch on XZ plane
sketch11 = doc.addObject("Sketcher::SketchObject", "Sketch010")
body.addObject(sketch11)
sketch11.AttachmentSupport = (doc.XZ_Plane, [""])
sketch11.MapMode = "FlatFace"
sketch11.AttachmentOffset = App.Placement(App.Vector(0, 0, -31), App.Rotation())
sketch11.addGeometry([
    Part.LineSegment(App.Vector(-13.760092, 50.921882, 0), App.Vector(-5.265973, 52.267218, 0)),
    Part.LineSegment(App.Vector(-5.265973, 52.267218, 0), App.Vector(-4.577661, 47.92139, 0)),
    Part.LineSegment(App.Vector(-4.577661, 47.92139, 0), App.Vector(-13.071781, 46.576054, 0)),
    Part.LineSegment(App.Vector(-13.071781, 46.576054, 0), App.Vector(-13.760092, 50.921882, 0)),
], False)
sketch11.addConstraint([
    Sketcher.Constraint("Coincident", 0, 2, 1, 1),
    Sketcher.Constraint("Coincident", 1, 2, 2, 1),
    Sketcher.Constraint("Coincident", 2, 2, 3, 1),
    Sketcher.Constraint("Coincident", 3, 2, 0, 1),
    Sketcher.Constraint("Perpendicular", 0, 1),
    Sketcher.Constraint("Perpendicular", 1, 2),
    Sketcher.Constraint("Perpendicular", 2, 3),
    Sketcher.Constraint("Angle", 0, Q("8.999999 deg")),
    Sketcher.Constraint("Distance", 0, Q("8.6 mm")),
    Sketcher.Constraint("Distance", 1, Q("4.4 mm")),
    Sketcher.Constraint("DistanceY", -1, 1, 0, 2, Q("52.267218 mm")),
    Sketcher.Constraint("DistanceX", 1, 2, -1, 1, Q("4.577661 mm")),
])
sketch11.setExpression("Constraints[8]", "Params.sketch11_length")
sketch11.setExpression("Constraints[9]", "Params.sketch11_length2")
pad10 = doc.addObject("PartDesign::Pad", "Pad009")
body.addObject(pad10)
pad10.Profile = sketch11
pad10.setExpression("Length", "Params.pad10_length")
pad10.Reversed = True

# Sketch on XY plane
sketch12 = doc.addObject("Sketcher::SketchObject", "Sketch011")
body.addObject(sketch12)
sketch12.AttachmentSupport = (doc.XY_Plane, [""])
sketch12.MapMode = "FlatFace"
sketch12.AttachmentOffset = App.Placement(App.Vector(0, 0, 53.5), App.Rotation())
sketch12.addGeometry([
    Part.LineSegment(App.Vector(-2.625, 30.8, 0), App.Vector(2.625, 30.8, 0)),  # 0
    Part.LineSegment(App.Vector(2.625, 30.8, 0), App.Vector(3.872091, 32.337909, 0)),  # 1
    Part.LineSegment(App.Vector(3.872091, 32.337909, 0), App.Vector(3.872091, 33.507909, 0)),  # 2
    Part.LineSegment(App.Vector(3.872091, 33.507909, 0), App.Vector(3.63, 33.75, 0)),  # 3
    Part.LineSegment(App.Vector(3.63, 33.75, 0), App.Vector(-3.63, 33.75, 0)),  # 4
    Part.LineSegment(App.Vector(-3.63, 33.75, 0), App.Vector(-3.872091, 33.507909, 0)),  # 5
    Part.LineSegment(App.Vector(-3.872091, 33.507909, 0), App.Vector(-3.872091, 32.337909, 0)),  # 6
    Part.LineSegment(App.Vector(-3.872091, 32.337909, 0), App.Vector(-2.625, 30.8, 0)),  # 7
], False)
sketch12.addConstraint([
    Sketcher.Constraint("Coincident", 0, 2, 1, 1),
    Sketcher.Constraint("Coincident", 1, 2, 2, 1),
    Sketcher.Constraint("Coincident", 2, 2, 3, 1),
    Sketcher.Constraint("Coincident", 3, 2, 4, 1),
    Sketcher.Constraint("Coincident", 4, 2, 5, 1),
    Sketcher.Constraint("Coincident", 5, 2, 6, 1),
    Sketcher.Constraint("Coincident", 6, 2, 7, 1),
    Sketcher.Constraint("Coincident", 7, 2, 0, 1),
    Sketcher.Constraint("Horizontal", 0),
    Sketcher.Constraint("Vertical", 2),
    Sketcher.Constraint("Horizontal", 4),
    Sketcher.Constraint("Vertical", 6),
    Sketcher.Constraint("Symmetric", 2, 2, 5, 2, -2),
    Sketcher.Constraint("Perpendicular", 3, 5),
    Sketcher.Constraint("Horizontal", 1, 2, 6, 2),
    Sketcher.Constraint("Equal", 3, 5),
    Sketcher.Constraint("Equal", 1, 7),
    Sketcher.Constraint("DistanceX", 0, 1, 0, 2, Q("5.25 mm")),
    Sketcher.Constraint("DistanceX", 4, 2, 4, 1, Q("7.26 mm")),
    Sketcher.Constraint("DistanceY", 2, 1, 2, 2, Q("1.17 mm")),
    Sketcher.Constraint("DistanceY", -1, 1, 0, 2, Q("30.8 mm")),
    Sketcher.Constraint("Distance", 1, Q("1.98 mm")),
    Sketcher.Constraint("DistanceY", -1, 1, 3, 2, Q("33.75 mm")),
])
sketch12.setExpression("Constraints[17]", "Params.sketch12_width")
sketch12.setExpression("Constraints[18]", "Params.sketch12_width2")
sketch12.setExpression("Constraints[19]", "Params.sketch12_height")
sketch12.setExpression("Constraints[21]", "Params.sketch12_length")
pad11 = doc.addObject("PartDesign::Pad", "Pad010")
body.addObject(pad11)
pad11.Profile = sketch12
pad11.setExpression("Length", "Params.pad11_length")
pad11.Reversed = True

# Sketch on XZ plane
sketch13 = doc.addObject("Sketcher::SketchObject", "Sketch012")
body.addObject(sketch13)
sketch13.AttachmentSupport = (doc.XZ_Plane, [""])
sketch13.MapMode = "FlatFace"
sketch13.AttachmentOffset = App.Placement(App.Vector(0, 0, -31), App.Rotation())
sketch13.addGeometry([
    Part.LineSegment(App.Vector(11.62494, 45.075447, 0), App.Vector(4.288834, 46.634786, 0)),
    Part.LineSegment(App.Vector(4.288834, 46.634786, 0), App.Vector(5.709909, 53.320419, 0)),
    Part.LineSegment(App.Vector(5.709909, 53.320419, 0), App.Vector(13.046016, 51.761081, 0)),
    Part.LineSegment(App.Vector(13.046016, 51.761081, 0), App.Vector(11.62494, 45.075447, 0)),
], False)
sketch13.addConstraint([
    Sketcher.Constraint("Coincident", 0, 2, 1, 1),
    Sketcher.Constraint("Coincident", 1, 2, 2, 1),
    Sketcher.Constraint("Coincident", 2, 2, 3, 1),
    Sketcher.Constraint("Coincident", 3, 2, 0, 1),
    Sketcher.Constraint("Perpendicular", 0, 1),
    Sketcher.Constraint("Perpendicular", 1, 2),
    Sketcher.Constraint("Perpendicular", 2, 3),
    Sketcher.Constraint("Angle", 0, Q("167.999994 deg")),
    Sketcher.Constraint("Distance", 0, Q("7.5 mm")),
    Sketcher.Constraint("DistanceX", -1, 1, 1, 2, Q("5.709909 mm")),
    Sketcher.Constraint("DistanceY", -1, 1, 1, 2, Q("53.320419 mm")),
    Sketcher.Constraint("DistanceX", -1, 1, 3, 2, Q("11.62494 mm")),
])
sketch13.setExpression("Constraints[8]", "Params.sketch13_length")
pad12 = doc.addObject("PartDesign::Pad", "Pad011")
body.addObject(pad12)
pad12.Profile = sketch13
pad12.setExpression("Length", "Params.pad12_length")
pad12.Reversed = True

# Sketch on an angled plane
sketch14 = doc.addObject("Sketcher::SketchObject", "Sketch013")
body.addObject(sketch14)
sketch14.Placement = App.Placement(App.Vector(11.090513, 0, 52.176736), App.Rotation(App.Vector(0.978147579, 0, -0.207911792), App.Vector(0, 1, 0), App.Vector(0.207911792, 0, 0.978147579), "ZXY"))
sketch14.addGeometry(Part.Circle(App.Vector(-1.75081, 35.06, 0), App.Vector(0, 0, 1), 1.8), False)
sketch14.addConstraint([
    Sketcher.Constraint("Diameter", 0, Q("3.6 mm")),
    Sketcher.Constraint("DistanceY", -1, 1, 0, 3, Q("35.06 mm")),
    Sketcher.Constraint("DistanceX", 0, 3, -1, 1, Q("1.75081 mm")),
])
sketch14.setExpression("Constraints[0]", "Params.sketch14_diameter")
pad13 = doc.addObject("PartDesign::Pad", "Pad012")
body.addObject(pad13)
pad13.Profile = sketch14
pad13.setExpression("Length", "Params.pad13_length")
body3 = doc.addObject("PartDesign::Body", "Body002")

# Sketch on XZ plane
sketch15 = doc.addObject("Sketcher::SketchObject", "Sketch014")
body3.addObject(sketch15)
sketch15.AttachmentSupport = (doc.getObject("XZ_Plane002"), [""])
sketch15.MapMode = "FlatFace"
sketch15.AttachmentOffset = App.Placement(App.Vector(0, 0, -32.6), App.Rotation())
sketch15.addGeometry([
    Part.LineSegment(App.Vector(-7.537656, 51.907419, 0), App.Vector(-11.725118, 51.24419, 0)),
    Part.LineSegment(App.Vector(-11.725118, 51.24419, 0), App.Vector(-12.394248, 55.593057, 0)),
    Part.LineSegment(App.Vector(-12.394248, 55.593057, 0), App.Vector(-8.225967, 56.253248, 0)),
    Part.LineSegment(App.Vector(-8.225967, 56.253248, 0), App.Vector(-7.537656, 51.907419, 0)),
], False)
sketch15.addConstraint([
    Sketcher.Constraint("Coincident", 0, 2, 1, 1),
    Sketcher.Constraint("Coincident", 1, 2, 2, 1),
    Sketcher.Constraint("Coincident", 2, 2, 3, 1),
    Sketcher.Constraint("Coincident", 3, 2, 0, 1),
    Sketcher.Constraint("Parallel", 0, 2),
    Sketcher.Constraint("Perpendicular", 2, 3),
    Sketcher.Constraint("Angle", 0, Q("-171.000001 deg")),
    Sketcher.Constraint("Distance", 3, Q("4.4 mm")),
    Sketcher.Constraint("Distance", 0, Q("4.23966 mm")),
    Sketcher.Constraint("Distance", 2, Q("4.220239 mm")),
    Sketcher.Constraint("DistanceX", 0, 2, -1, 1, Q("11.725118 mm")),
    Sketcher.Constraint("DistanceY", -1, 1, 0, 2, Q("51.24419 mm")),
])
sketch15.setExpression("Constraints[7]", "Params.sketch15_length")
pad14 = doc.addObject("PartDesign::Pad", "Pad013")
body3.addObject(pad14)
pad14.Profile = sketch15
pad14.setExpression("Length", "Params.pad14_length")
pad14.Reversed = True

doc.recompute()
